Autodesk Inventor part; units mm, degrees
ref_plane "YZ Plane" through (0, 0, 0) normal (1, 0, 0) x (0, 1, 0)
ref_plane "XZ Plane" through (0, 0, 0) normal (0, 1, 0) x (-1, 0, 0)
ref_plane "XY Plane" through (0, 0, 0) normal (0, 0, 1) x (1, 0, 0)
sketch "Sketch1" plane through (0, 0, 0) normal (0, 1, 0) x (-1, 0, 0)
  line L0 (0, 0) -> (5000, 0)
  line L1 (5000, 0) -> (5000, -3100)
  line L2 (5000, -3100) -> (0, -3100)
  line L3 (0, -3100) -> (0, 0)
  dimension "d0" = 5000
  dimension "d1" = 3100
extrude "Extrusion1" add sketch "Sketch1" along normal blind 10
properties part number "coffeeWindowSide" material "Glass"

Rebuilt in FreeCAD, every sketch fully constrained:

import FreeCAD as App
import Part
import Sketcher
Q = App.Units.Quantity

doc = App.newDocument("Part")
body = doc.addObject("PartDesign::Body", "Body")

# Sketch on XZ plane
sketch1 = doc.addObject("Sketcher::SketchObject", "Sketch")
body.addObject(sketch1)
sketch1.AttachmentSupport = (doc.XZ_Plane, [""])
sketch1.MapMode = "FlatFace"
sketch1.addGeometry(Part.LineSegment(App.Vector(-5000, 0, 0), App.Vector(0, 0, 0)), False)
sketch1.addGeometry(Part.LineSegment(App.Vector(0, 0, 0), App.Vector(0, -3100, 0)), False)
sketch1.addGeometry(Part.LineSegment(App.Vector(0, -3100, 0), App.Vector(-5000, -3100, 0)), False)
sketch1.addGeometry(Part.LineSegment(App.Vector(-5000, -3100, 0), App.Vector(-5000, 0, 0)), False)
sketch1.addConstraint(Sketcher.Constraint("Coincident", 0, 2, 1, 1))
sketch1.addConstraint(Sketcher.Constraint("Coincident", 1, 2, 2, 1))
sketch1.addConstraint(Sketcher.Constraint("Coincident", 2, 2, 3, 1))
sketch1.addConstraint(Sketcher.Constraint("Coincident", 3, 2, 0, 1))
sketch1.addConstraint(Sketcher.Constraint("Horizontal", 0))
sketch1.addConstraint(Sketcher.Constraint("Vertical", 1))
sketch1.addConstraint(Sketcher.Constraint("Horizontal", 2))
sketch1.addConstraint(Sketcher.Constraint("Vertical", 3))
sketch1.addConstraint(Sketcher.Constraint("Coincident", 0, 2, -1, 1))
sketch1.addConstraint(Sketcher.Constraint("DistanceX", 0, 1, 0, 2, Q("5000 mm")))
sketch1.addConstraint(Sketcher.Constraint("DistanceY", 1, 2, 1, 1, Q("3100 mm")))
pad1 = doc.addObject("PartDesign::Pad", "Pad")
body.addObject(pad1)
pad1.Profile = sketch1
pad1.Length = 10
pad1.Reversed = True

doc.recompute()
